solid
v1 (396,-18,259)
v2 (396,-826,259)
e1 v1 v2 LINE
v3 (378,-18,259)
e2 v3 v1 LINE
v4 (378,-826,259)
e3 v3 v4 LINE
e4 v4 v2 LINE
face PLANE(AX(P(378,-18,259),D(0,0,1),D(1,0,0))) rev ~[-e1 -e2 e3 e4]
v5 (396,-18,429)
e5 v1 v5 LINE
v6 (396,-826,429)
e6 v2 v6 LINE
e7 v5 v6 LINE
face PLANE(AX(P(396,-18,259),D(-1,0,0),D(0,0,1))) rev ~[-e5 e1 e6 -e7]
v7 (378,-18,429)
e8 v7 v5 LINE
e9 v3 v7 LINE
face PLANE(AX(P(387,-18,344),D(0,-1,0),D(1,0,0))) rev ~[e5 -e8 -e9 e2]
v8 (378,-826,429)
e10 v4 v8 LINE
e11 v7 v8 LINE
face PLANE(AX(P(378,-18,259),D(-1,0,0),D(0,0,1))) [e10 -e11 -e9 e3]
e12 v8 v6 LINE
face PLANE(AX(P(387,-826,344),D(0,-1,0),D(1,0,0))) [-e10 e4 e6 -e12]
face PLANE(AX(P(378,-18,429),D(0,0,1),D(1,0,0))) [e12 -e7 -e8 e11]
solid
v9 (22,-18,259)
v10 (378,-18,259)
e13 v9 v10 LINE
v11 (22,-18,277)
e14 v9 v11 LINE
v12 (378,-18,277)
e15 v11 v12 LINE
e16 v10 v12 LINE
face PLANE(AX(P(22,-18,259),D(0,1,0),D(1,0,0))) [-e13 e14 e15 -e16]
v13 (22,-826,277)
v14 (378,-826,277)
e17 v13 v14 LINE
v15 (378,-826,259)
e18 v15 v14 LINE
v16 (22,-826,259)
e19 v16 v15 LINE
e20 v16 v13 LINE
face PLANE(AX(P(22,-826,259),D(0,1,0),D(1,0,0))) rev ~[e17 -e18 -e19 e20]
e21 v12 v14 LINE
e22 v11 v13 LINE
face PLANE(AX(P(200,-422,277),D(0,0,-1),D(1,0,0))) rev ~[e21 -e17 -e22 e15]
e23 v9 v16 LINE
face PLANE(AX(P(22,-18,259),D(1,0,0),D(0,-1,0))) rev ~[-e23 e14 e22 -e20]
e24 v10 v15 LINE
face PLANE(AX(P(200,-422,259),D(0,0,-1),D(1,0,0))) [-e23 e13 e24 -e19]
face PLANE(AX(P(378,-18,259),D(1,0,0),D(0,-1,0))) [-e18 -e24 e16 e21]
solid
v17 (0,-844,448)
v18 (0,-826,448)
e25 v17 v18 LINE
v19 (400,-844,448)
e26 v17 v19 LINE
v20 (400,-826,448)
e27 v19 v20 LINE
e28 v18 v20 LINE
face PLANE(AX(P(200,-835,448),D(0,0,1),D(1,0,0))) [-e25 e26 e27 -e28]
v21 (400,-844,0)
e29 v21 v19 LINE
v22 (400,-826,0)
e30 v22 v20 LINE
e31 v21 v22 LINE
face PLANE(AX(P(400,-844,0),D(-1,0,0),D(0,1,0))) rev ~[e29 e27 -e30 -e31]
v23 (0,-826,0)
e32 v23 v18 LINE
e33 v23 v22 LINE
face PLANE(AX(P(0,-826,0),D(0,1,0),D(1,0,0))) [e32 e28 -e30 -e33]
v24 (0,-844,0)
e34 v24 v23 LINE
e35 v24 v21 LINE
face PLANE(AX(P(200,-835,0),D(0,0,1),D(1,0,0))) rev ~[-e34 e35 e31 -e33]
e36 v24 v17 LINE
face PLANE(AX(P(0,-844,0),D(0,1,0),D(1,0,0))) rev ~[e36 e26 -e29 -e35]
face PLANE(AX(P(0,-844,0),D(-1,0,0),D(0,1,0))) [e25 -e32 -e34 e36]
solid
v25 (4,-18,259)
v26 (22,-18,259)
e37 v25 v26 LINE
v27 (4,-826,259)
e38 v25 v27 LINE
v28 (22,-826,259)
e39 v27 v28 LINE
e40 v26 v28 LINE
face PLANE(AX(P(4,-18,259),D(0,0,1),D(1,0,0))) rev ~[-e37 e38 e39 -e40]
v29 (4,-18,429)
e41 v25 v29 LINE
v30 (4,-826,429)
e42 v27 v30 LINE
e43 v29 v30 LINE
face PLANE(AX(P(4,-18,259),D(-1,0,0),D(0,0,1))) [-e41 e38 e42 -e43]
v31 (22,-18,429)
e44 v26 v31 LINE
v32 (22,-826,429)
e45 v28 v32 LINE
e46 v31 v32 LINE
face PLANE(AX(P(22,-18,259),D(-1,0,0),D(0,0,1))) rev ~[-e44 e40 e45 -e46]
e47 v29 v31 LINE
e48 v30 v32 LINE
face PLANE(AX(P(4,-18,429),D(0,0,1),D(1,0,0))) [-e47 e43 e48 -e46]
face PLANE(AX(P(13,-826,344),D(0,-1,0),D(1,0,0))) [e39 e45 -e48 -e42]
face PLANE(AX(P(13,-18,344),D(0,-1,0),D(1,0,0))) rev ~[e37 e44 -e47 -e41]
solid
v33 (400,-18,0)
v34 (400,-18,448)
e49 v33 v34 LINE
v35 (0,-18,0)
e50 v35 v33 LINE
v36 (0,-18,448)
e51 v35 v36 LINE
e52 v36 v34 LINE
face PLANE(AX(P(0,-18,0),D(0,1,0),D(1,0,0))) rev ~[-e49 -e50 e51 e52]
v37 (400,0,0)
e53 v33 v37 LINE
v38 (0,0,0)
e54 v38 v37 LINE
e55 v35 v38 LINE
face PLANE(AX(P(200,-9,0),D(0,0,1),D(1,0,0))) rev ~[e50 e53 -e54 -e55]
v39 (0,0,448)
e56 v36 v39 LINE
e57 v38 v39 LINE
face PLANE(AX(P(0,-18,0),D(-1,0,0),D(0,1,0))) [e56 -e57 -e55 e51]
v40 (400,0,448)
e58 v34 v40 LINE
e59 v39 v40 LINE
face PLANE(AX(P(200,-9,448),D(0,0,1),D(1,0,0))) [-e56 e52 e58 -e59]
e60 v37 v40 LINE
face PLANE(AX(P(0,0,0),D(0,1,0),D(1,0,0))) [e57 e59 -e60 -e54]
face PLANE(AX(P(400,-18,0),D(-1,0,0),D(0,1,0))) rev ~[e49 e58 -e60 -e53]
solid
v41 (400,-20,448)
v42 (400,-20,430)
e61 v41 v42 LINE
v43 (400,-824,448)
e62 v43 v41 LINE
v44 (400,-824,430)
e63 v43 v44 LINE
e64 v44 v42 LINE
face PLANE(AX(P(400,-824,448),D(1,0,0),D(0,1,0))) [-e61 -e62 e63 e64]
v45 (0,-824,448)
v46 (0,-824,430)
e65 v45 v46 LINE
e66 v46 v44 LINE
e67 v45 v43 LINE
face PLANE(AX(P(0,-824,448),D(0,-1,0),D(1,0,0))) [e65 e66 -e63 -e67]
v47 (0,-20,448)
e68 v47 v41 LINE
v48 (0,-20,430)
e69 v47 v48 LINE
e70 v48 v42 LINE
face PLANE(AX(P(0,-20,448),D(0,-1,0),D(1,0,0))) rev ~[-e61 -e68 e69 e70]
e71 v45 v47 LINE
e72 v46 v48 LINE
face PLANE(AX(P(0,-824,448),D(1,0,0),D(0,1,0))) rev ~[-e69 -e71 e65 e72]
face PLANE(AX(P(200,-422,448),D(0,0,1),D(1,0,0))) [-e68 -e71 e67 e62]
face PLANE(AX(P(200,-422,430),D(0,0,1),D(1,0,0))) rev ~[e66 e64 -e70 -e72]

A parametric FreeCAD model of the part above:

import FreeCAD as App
import Part
import Sketcher
Q = App.Units.Quantity


def add_polygon(sketch, points):
    """Adds a closed chain of lines whose ends are joined by coincident constraints."""
    first, n = sketch.GeometryCount, len(points)
    for a, b in zip(points, points[1:] + points[:1]):
        sketch.addGeometry(Part.LineSegment(App.Vector(*a, 0), App.Vector(*b, 0)), False)
    for i in range(n):
        sketch.addConstraint(Sketcher.Constraint("Coincident", first + i, 2, first + (i + 1) % n, 1))

doc = App.newDocument("Part")
body = doc.addObject("PartDesign::Body", "Body")
body.AllowCompound = True

# Sketch on XY plane
sketch1 = doc.addObject("Sketcher::SketchObject", "Sketch")
body.addObject(sketch1)
sketch1.AttachmentSupport = (doc.XY_Plane, [""])
sketch1.MapMode = "FlatFace"
add_polygon(sketch1, [(0, 0), (0, -18), (400, -18), (400, 0)])  # lines 0-3
add_polygon(sketch1, [(0, -826), (0, -844), (400, -844), (400, -826)])  # lines 4-7
sketch1.addConstraint([
    Sketcher.Constraint("Vertical", 0),
    Sketcher.Constraint("Horizontal", 1),
    Sketcher.Constraint("Vertical", 2),
    Sketcher.Constraint("Horizontal", 3),
    Sketcher.Constraint("Vertical", 4),
    Sketcher.Constraint("Horizontal", 5),
    Sketcher.Constraint("Vertical", 6),
    Sketcher.Constraint("Horizontal", 7),
    Sketcher.Constraint("Coincident", 3, 2, -1, 1),
    Sketcher.Constraint("PointOnObject", 4, 2, -2),
    Sketcher.Constraint("Vertical", 2, 2, 5, 2),
    Sketcher.Constraint("Equal", 2, 4),
    Sketcher.Constraint("DistanceX", 1, 1, 1, 2, Q("400 mm")),
    Sketcher.Constraint("DistanceY", 0, 2, 0, 1, Q("18 mm")),
    Sketcher.Constraint("DistanceY", 4, 2, -1, 1, Q("844 mm")),
])
pad1 = doc.addObject("PartDesign::Pad", "Pad")
body.addObject(pad1)
pad1.Profile = sketch1
pad1.Length = 448
body2 = doc.addObject("PartDesign::Body", "Body001")
body2.AllowCompound = True

# Sketch on XZ plane
sketch2 = doc.addObject("Sketcher::SketchObject", "Sketch001")
body2.addObject(sketch2)
sketch2.AttachmentSupport = (doc.getObject("XZ_Plane001"), [""])
sketch2.MapMode = "FlatFace"
sketch2.AttachmentOffset = App.Placement(App.Vector(0, 0, 18), App.Rotation())
add_polygon(sketch2, [(4, 429), (4, 259), (22, 259), (22, 429)])  # lines 0-3
add_polygon(sketch2, [(378, 429), (378, 259), (396, 259), (396, 429)])  # lines 4-7
sketch2.addConstraint([
    Sketcher.Constraint("Vertical", 0),
    Sketcher.Constraint("Horizontal", 1),
    Sketcher.Constraint("Vertical", 2),
    Sketcher.Constraint("Horizontal", 3),
    Sketcher.Constraint("Vertical", 4),
    Sketcher.Constraint("Horizontal", 5),
    Sketcher.Constraint("Vertical", 6),
    Sketcher.Constraint("Horizontal", 7),
    Sketcher.Constraint("Horizontal", 1, 2, 4, 2),
    Sketcher.Constraint("Horizontal", 3, 2, 6, 2),
    Sketcher.Constraint("Equal", 3, 5),
    Sketcher.Constraint("DistanceX", 1, 1, 1, 2, Q("18 mm")),
    Sketcher.Constraint("DistanceY", 0, 2, 0, 1, Q("170 mm")),
    Sketcher.Constraint("DistanceX", -1, 1, 0, 2, Q("4 mm")),
    Sketcher.Constraint("DistanceY", -1, 1, 0, 2, Q("259 mm")),
    Sketcher.Constraint("DistanceX", -1, 1, 4, 2, Q("378 mm")),
])
pad2 = doc.addObject("PartDesign::Pad", "Pad001")
body2.addObject(pad2)
pad2.Profile = sketch2
pad2.Length = 808
body3 = doc.addObject("PartDesign::Body", "Body002")

# Sketch on XY plane
sketch3 = doc.addObject("Sketcher::SketchObject", "Sketch002")
body3.addObject(sketch3)
sketch3.AttachmentSupport = (doc.getObject("XY_Plane002"), [""])
sketch3.MapMode = "FlatFace"
sketch3.AttachmentOffset = App.Placement(App.Vector(0, 0, 259), App.Rotation())
add_polygon(sketch3, [(22, -826), (22, -18), (378, -18), (378, -826)])  # lines 0-3
sketch3.addConstraint([
    Sketcher.Constraint("Vertical", 0),
    Sketcher.Constraint("Horizontal", 1),
    Sketcher.Constraint("Vertical", 2),
    Sketcher.Constraint("Horizontal", 3),
    Sketcher.Constraint("DistanceX", 1, 1, 1, 2, Q("356 mm")),
    Sketcher.Constraint("DistanceY", 0, 1, 0, 2, Q("808 mm")),
    Sketcher.Constraint("DistanceX", -1, 1, 0, 2, Q("22 mm")),
    Sketcher.Constraint("DistanceY", 0, 2, -1, 1, Q("18 mm")),
])
pad3 = doc.addObject("PartDesign::Pad", "Pad002")
body3.addObject(pad3)
pad3.Profile = sketch3
pad3.Length = 18
body4 = doc.addObject("PartDesign::Body", "Body003")

# Sketch on XY plane
sketch4 = doc.addObject("Sketcher::SketchObject", "Sketch003")
body4.addObject(sketch4)
sketch4.AttachmentSupport = (doc.getObject("XY_Plane003"), [""])
sketch4.MapMode = "FlatFace"
sketch4.AttachmentOffset = App.Placement(App.Vector(0, 0, 448), App.Rotation())
add_polygon(sketch4, [(0, -20), (0, -824), (400, -824), (400, -20)])  # lines 0-3
sketch4.addConstraint([
    Sketcher.Constraint("Vertical", 0),
    Sketcher.Constraint("Horizontal", 1),
    Sketcher.Constraint("Vertical", 2),
    Sketcher.Constraint("Horizontal", 3),
    Sketcher.Constraint("PointOnObject", 0, 2, -2),
    Sketcher.Constraint("DistanceX", 1, 1, 1, 2, Q("400 mm")),
    Sketcher.Constraint("DistanceY", 0, 2, 0, 1, Q("804 mm")),
    Sketcher.Constraint("DistanceY", 0, 2, -1, 1, Q("824 mm")),
])
pad4 = doc.addObject("PartDesign::Pad", "Pad003")
body4.addObject(pad4)
pad4.Profile = sketch4
pad4.Length = 18
pad4.Reversed = True

doc.recompute()
